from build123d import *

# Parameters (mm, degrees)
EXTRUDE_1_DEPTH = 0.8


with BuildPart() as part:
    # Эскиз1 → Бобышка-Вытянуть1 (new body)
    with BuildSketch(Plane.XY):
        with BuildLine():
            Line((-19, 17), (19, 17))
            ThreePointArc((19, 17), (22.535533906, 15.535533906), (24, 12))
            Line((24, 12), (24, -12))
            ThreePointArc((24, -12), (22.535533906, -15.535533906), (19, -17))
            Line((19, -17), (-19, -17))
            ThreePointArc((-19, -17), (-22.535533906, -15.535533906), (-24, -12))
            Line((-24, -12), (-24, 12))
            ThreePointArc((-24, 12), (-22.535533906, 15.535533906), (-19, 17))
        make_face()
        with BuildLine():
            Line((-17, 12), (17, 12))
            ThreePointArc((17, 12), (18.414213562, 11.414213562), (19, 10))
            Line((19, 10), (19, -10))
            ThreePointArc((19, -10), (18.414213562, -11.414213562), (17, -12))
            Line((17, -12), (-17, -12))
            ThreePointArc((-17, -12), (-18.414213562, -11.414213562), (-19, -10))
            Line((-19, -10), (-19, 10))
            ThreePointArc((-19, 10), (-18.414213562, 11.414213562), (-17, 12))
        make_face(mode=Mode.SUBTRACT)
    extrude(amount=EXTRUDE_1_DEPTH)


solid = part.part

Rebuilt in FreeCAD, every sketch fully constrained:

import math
import FreeCAD as App
import Part
import Sketcher
from FreeCAD import Vector

doc = App.newDocument("Part")
params = doc.addObject("Spreadsheet::Sheet", "Params")
for row, (alias, value) in enumerate([
    ("sketch1_radius", "5 mm"),
    ("sketch1_radius2", "2 mm"),
    ("sketch1_width", "38 mm"),
    ("sketch1_height", "24 mm"),
    ("pad1_length", "0.8 mm"),
], start=1):
    params.set(f"A{row}", alias)
    params.set(f"B{row}", "=" + value)
    params.setAlias(f"B{row}", alias)

body = doc.addObject("PartDesign::Body", "Body")

# Sketch on XY plane
sketch1 = doc.addObject("Sketcher::SketchObject", "Sketch")
body.addObject(sketch1)
sketch1.AttachmentSupport = (doc.XY_Plane, [""])
sketch1.MapMode = "FlatFace"
sketch1.addGeometry([
    Part.LineSegment(Vector(19, 17, 0), Vector(-19, 17, 0)),  # 0
    Part.ArcOfCircle(Part.Circle(Vector(-19, 12, 0), Vector(0, 0, 1), 5), math.radians(90), math.radians(180)),  # 1
    Part.LineSegment(Vector(-24, 12, 0), Vector(-24, -12, 0)),  # 2
    Part.ArcOfCircle(Part.Circle(Vector(-19, -12, 0), Vector(0, 0, 1), 5), math.radians(180), math.radians(270)),  # 3
    Part.LineSegment(Vector(-19, -17, 0), Vector(19, -17, 0)),  # 4
    Part.ArcOfCircle(Part.Circle(Vector(19, -12, 0), Vector(0, 0, 1), 5), math.radians(-90), math.radians(0)),  # 5
    Part.LineSegment(Vector(24, -12, 0), Vector(24, 12, 0)),  # 6
    Part.ArcOfCircle(Part.Circle(Vector(19, 12, 0), Vector(0, 0, 1), 5), math.radians(0), math.radians(90)),  # 7
    Part.LineSegment(Vector(-17, 12, 0), Vector(17, 12, 0)),  # 8
    Part.ArcOfCircle(Part.Circle(Vector(17, 10, 0), Vector(0, 0, 1), 2), math.radians(0), math.radians(90)),  # 9
    Part.LineSegment(Vector(19, 10, 0), Vector(19, -10, 0)),  # 10
    Part.ArcOfCircle(Part.Circle(Vector(17, -10, 0), Vector(0, 0, 1), 2), math.radians(-90), math.radians(0)),  # 11
    Part.LineSegment(Vector(17, -12, 0), Vector(-17, -12, 0)),  # 12
    Part.ArcOfCircle(Part.Circle(Vector(-17, -10, 0), Vector(0, 0, 1), 2), math.radians(-180), math.radians(-90)),  # 13
    Part.LineSegment(Vector(-19, -10, 0), Vector(-19, 10, 0)),  # 14
    Part.ArcOfCircle(Part.Circle(Vector(-17, 10, 0), Vector(0, 0, 1), 2), math.radians(90), math.radians(180)),  # 15
], False)
sketch1.addConstraint([
    Sketcher.Constraint("Tangent", 0, 2, 1, 1),
    Sketcher.Constraint("Tangent", 1, 2, 2, 1),
    Sketcher.Constraint("Tangent", 2, 2, 3, 1),
    Sketcher.Constraint("Tangent", 3, 2, 4, 1),
    Sketcher.Constraint("Tangent", 4, 2, 5, 1),
    Sketcher.Constraint("Tangent", 5, 2, 6, 1),
    Sketcher.Constraint("Tangent", 6, 2, 7, 1),
    Sketcher.Constraint("Tangent", 7, 2, 0, 1),
    Sketcher.Constraint("Tangent", 8, 2, 9, 2),
    Sketcher.Constraint("Tangent", 9, 1, 10, 1),
    Sketcher.Constraint("Tangent", 10, 2, 11, 2),
    Sketcher.Constraint("Tangent", 11, 1, 12, 1),
    Sketcher.Constraint("Tangent", 12, 2, 13, 2),
    Sketcher.Constraint("Tangent", 13, 1, 14, 1),
    Sketcher.Constraint("Tangent", 14, 2, 15, 2),
    Sketcher.Constraint("Tangent", 15, 1, 8, 1),
    Sketcher.Constraint("Horizontal", 0),
    Sketcher.Constraint("Vertical", 2),
    Sketcher.Constraint("Horizontal", 4),
    Sketcher.Constraint("Vertical", 6),
    Sketcher.Constraint("Horizontal", 8),
    Sketcher.Constraint("Vertical", 10),
    Sketcher.Constraint("Horizontal", 12),
    Sketcher.Constraint("Vertical", 14),
    Sketcher.Constraint("Equal", 1, 3),
    Sketcher.Constraint("Equal", 3, 5),
    Sketcher.Constraint("Equal", 5, 7),
    Sketcher.Constraint("Equal", 9, 11),
    Sketcher.Constraint("Equal", 11, 13),
    Sketcher.Constraint("Equal", 13, 15),
    Sketcher.Constraint("Symmetric", 1, 3, 5, 3, -1, 1),
    Sketcher.Constraint("Symmetric", 9, 3, 13, 3, -1, 1),
    Sketcher.Constraint("Horizontal", 6, 2, 8, 2),
    Sketcher.Constraint("Vertical", 7, 2, 9, 1),
    Sketcher.Constraint("Radius", 1, 5.0),
    Sketcher.Constraint("Radius", 9, 2.0),
    Sketcher.Constraint("DistanceX", 0, 2, 0, 1, 38.0),
    Sketcher.Constraint("DistanceY", 2, 2, 2, 1, 24.0),
])
sketch1.setExpression("Constraints[34]", "Params.sketch1_radius")
sketch1.setExpression("Constraints[35]", "Params.sketch1_radius2")
sketch1.setExpression("Constraints[36]", "Params.sketch1_width")
sketch1.setExpression("Constraints[37]", "Params.sketch1_height")
pad1 = doc.addObject("PartDesign::Pad", "Pad")
body.addObject(pad1)
pad1.Profile = sketch1
pad1.setExpression("Length", "Params.pad1_length")

doc.recompute()
